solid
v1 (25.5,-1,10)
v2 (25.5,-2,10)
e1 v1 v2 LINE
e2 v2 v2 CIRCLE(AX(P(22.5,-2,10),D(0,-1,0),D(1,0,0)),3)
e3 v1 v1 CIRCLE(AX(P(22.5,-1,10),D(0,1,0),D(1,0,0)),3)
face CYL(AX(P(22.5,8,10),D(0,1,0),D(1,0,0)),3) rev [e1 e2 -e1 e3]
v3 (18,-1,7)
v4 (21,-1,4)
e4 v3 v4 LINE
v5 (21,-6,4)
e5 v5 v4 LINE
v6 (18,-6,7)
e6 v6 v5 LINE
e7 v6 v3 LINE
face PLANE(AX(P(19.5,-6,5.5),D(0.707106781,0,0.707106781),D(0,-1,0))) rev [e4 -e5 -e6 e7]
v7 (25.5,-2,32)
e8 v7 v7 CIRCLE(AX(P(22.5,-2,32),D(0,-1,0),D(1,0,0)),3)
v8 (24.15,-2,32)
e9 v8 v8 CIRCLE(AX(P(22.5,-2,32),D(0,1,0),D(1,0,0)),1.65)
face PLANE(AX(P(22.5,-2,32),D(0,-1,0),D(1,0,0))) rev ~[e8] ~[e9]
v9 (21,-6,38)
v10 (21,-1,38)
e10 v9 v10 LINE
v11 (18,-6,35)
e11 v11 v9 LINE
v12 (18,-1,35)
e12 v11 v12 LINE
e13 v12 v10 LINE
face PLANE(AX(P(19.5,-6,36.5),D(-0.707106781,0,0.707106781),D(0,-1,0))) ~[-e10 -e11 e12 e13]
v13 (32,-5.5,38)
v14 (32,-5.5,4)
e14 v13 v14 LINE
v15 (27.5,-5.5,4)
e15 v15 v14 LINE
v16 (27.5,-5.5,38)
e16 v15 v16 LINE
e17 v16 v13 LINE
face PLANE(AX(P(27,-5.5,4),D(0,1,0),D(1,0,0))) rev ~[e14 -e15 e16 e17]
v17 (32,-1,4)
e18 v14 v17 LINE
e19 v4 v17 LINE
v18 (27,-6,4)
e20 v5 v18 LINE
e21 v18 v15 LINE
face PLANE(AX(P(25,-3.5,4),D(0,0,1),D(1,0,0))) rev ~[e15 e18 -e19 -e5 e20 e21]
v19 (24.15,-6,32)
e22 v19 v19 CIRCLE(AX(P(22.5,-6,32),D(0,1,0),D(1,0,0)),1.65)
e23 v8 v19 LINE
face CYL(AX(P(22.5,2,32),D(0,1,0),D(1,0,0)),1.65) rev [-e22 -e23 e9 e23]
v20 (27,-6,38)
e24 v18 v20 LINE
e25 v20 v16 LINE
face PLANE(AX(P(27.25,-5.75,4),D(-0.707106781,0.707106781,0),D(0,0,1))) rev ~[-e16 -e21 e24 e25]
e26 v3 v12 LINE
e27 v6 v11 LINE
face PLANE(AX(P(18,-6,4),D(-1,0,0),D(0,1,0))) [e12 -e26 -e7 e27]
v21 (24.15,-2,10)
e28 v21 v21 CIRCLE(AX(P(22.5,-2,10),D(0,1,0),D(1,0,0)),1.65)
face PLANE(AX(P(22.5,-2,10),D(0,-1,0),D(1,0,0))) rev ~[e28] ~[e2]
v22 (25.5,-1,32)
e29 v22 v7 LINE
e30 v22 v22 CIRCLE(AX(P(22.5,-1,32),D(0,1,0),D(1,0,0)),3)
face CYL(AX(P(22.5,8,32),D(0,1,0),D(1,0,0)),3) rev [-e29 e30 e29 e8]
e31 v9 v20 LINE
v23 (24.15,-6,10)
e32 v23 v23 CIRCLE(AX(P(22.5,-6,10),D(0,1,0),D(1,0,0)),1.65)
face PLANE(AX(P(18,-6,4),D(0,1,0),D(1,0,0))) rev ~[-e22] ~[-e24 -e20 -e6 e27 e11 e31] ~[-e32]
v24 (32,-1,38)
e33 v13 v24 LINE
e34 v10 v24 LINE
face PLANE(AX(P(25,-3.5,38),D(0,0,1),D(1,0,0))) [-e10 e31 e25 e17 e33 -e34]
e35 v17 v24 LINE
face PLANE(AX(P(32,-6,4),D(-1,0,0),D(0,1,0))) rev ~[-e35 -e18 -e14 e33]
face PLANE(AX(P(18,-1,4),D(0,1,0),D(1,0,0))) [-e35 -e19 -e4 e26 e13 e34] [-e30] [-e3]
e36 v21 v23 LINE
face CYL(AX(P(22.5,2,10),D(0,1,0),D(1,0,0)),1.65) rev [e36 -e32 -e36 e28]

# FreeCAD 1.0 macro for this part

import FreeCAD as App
import Part
import Sketcher
from FreeCAD import Vector
Q = App.Units.Quantity


def edges_at(feature, points):
    """Names of the edges that pass closest to the given points."""
    edges = feature.Shape.Edges
    near = lambda p: min(range(len(edges)), key=lambda i: edges[i].distToShape(Part.Vertex(*p))[0])
    return sorted({f"Edge{near(p) + 1}" for p in points})


def add_polygon(sketch, points):
    """Adds a closed chain of lines whose ends are joined by coincident constraints."""
    first, n = sketch.GeometryCount, len(points)
    for a, b in zip(points, points[1:] + points[:1]):
        sketch.addGeometry(Part.LineSegment(App.Vector(*a, 0), App.Vector(*b, 0)), False)
    for i in range(n):
        sketch.addConstraint(Sketcher.Constraint("Coincident", first + i, 2, first + (i + 1) % n, 1))

doc = App.newDocument("Part")
body = doc.addObject("PartDesign::Body", "Body")

sketch1 = body.newObject("Sketcher::SketchObject", "Sketch")
sketch1.AttachmentSupport = (doc.getObject("XZ_Plane"), [""])
sketch1.MapMode = "FlatFace"
sketch1.AttachmentOffset = App.Placement(Vector(0, 0, -2), App.Rotation())
sketch1.addGeometry(Part.Circle(Vector(22.5, 10, 0), Vector(0, 0, 1), 3), False)
sketch1.addConstraint(Sketcher.Constraint("Diameter", 0, Q("6 mm")))
sketch1.addConstraint(Sketcher.Constraint("DistanceY", -1, 1, 0, 3, Q("10 mm")))
sketch1.addConstraint(Sketcher.Constraint("DistanceX", -1, 1, 0, 3, Q("22.5 mm")))
pad1 = body.newObject("PartDesign::Pad", "Pad")
pad1.Profile = sketch1
pad1.Length = 10
body2 = doc.addObject("PartDesign::Body", "Body001")
body2.AllowCompound = True

sketch2 = body2.newObject("Sketcher::SketchObject", "Sketch001")
sketch2.AttachmentSupport = (doc.getObject("XZ_Plane001"), [""])
sketch2.MapMode = "FlatFace"
sketch2.AttachmentOffset = App.Placement(Vector(0, 0, -2), App.Rotation())
sketch2.addGeometry(Part.Circle(Vector(22.5, 32, 0), Vector(0, 0, 1), 3), False)
sketch2.addConstraint(Sketcher.Constraint("Diameter", 0, Q("6 mm")))
sketch2.addConstraint(Sketcher.Constraint("DistanceY", -1, 1, 0, 3, Q("32 mm")))
sketch2.addConstraint(Sketcher.Constraint("DistanceX", -1, 1, 0, 3, Q("22.5 mm")))
pad2 = body2.newObject("PartDesign::Pad", "Pad001")
pad2.Profile = sketch2
pad2.Length = 10
doc.recompute()

boolean = body2.newObject("PartDesign::Boolean", "Boolean")
boolean.Type = "Fuse"
boolean.addObjects([body])
body3 = doc.addObject("PartDesign::Body", "Body002")
body3.AllowCompound = True
doc.recompute()

body2.Placement = App.Placement(Vector(0, 6, 0), App.Rotation(Vector(0, 0, 1), 0))
boolean2 = body3.newObject("PartDesign::Boolean", "Boolean001")
boolean2.Type = "Fuse"
boolean2.addObjects([body2])
body4 = doc.addObject("PartDesign::Body", "Body003")

sketch3 = body4.newObject("Sketcher::SketchObject", "Sketch002")
sketch3.AttachmentSupport = (doc.getObject("XZ_Plane003"), [""])
sketch3.MapMode = "FlatFace"
sketch3.AttachmentOffset = App.Placement(Vector(0, 0, -2), App.Rotation())
sketch3.addGeometry(Part.Circle(Vector(22.5, 10, 0), Vector(0, 0, 1), 1.6), False)
sketch3.addConstraint(Sketcher.Constraint("Diameter", 0, Q("3.3 mm")))
sketch3.addConstraint(Sketcher.Constraint("DistanceY", -1, 1, 0, 3, Q("10 mm")))
sketch3.addConstraint(Sketcher.Constraint("DistanceX", -1, 1, 0, 3, Q("22.5 mm")))
pad3 = body4.newObject("PartDesign::Pad", "Pad002")
pad3.Profile = sketch3
pad3.Length = 10
body5 = doc.addObject("PartDesign::Body", "Body004")
body5.AllowCompound = True

sketch4 = body5.newObject("Sketcher::SketchObject", "Sketch003")
sketch4.AttachmentSupport = (doc.getObject("XZ_Plane004"), [""])
sketch4.MapMode = "FlatFace"
sketch4.AttachmentOffset = App.Placement(Vector(0, 0, -2), App.Rotation())
sketch4.addGeometry(Part.Circle(Vector(22.5, 32, 0), Vector(0, 0, 1), 1.6), False)
sketch4.addConstraint(Sketcher.Constraint("Diameter", 0, Q("3.3 mm")))
sketch4.addConstraint(Sketcher.Constraint("DistanceY", -1, 1, 0, 3, Q("32 mm")))
sketch4.addConstraint(Sketcher.Constraint("DistanceX", -1, 1, 0, 3, Q("22.5 mm")))
pad4 = body5.newObject("PartDesign::Pad", "Pad003")
pad4.Profile = sketch4
pad4.Length = 10
doc.recompute()

boolean3 = body5.newObject("PartDesign::Boolean", "Boolean002")
boolean3.Type = "Fuse"
boolean3.addObjects([body4])
doc.recompute()

boolean4 = body5.newObject("PartDesign::Boolean", "Boolean003")
boolean4.Type = "Fuse"
boolean4.addObjects([body3])
body6 = doc.addObject("PartDesign::Body", "Body005")

sketch5 = body6.newObject("Sketcher::SketchObject", "Sketch004")
sketch5.AttachmentSupport = (doc.getObject("XY_Plane005"), [""])
sketch5.MapMode = "FlatFace"
sketch5.AttachmentOffset = App.Placement(Vector(0, 0, 4), App.Rotation())
add_polygon(sketch5, [(27, -6), (27, -10), (41, -10), (41, -6)])
sketch5.addConstraint(Sketcher.Constraint("Vertical", 0))
sketch5.addConstraint(Sketcher.Constraint("Horizontal", 1))
sketch5.addConstraint(Sketcher.Constraint("Vertical", 2))
sketch5.addConstraint(Sketcher.Constraint("Horizontal", 3))
sketch5.addConstraint(Sketcher.Constraint("DistanceX", 1, 1, 1, 2, Q("14 mm")))
sketch5.addConstraint(Sketcher.Constraint("DistanceY", 0, 2, 0, 1, Q("5 mm")))
sketch5.addConstraint(Sketcher.Constraint("DistanceX", -1, 1, 0, 2, Q("27 mm")))
sketch5.addConstraint(Sketcher.Constraint("DistanceY", 0, 2, -1, 1, Q("10.5 mm")))
pad5 = body6.newObject("PartDesign::Pad", "Pad004")
pad5.Profile = sketch5
pad5.Length = 34
doc.recompute()

chamfer = body6.newObject("PartDesign::Chamfer", "Chamfer")
chamfer.Base = (pad5, edges_at(pad5, [(27, -5.5, 21)]))
chamfer.Size = 0.5
body7 = doc.addObject("PartDesign::Body", "Body006")

sketch6 = body7.newObject("Sketcher::SketchObject", "Sketch005")
sketch6.AttachmentSupport = (doc.getObject("XY_Plane006"), [""])
sketch6.MapMode = "FlatFace"
sketch6.AttachmentOffset = App.Placement(Vector(0, 0, 4), App.Rotation())
add_polygon(sketch6, [(18, -1), (18, -6), (32, -6), (32, -1)])
sketch6.addConstraint(Sketcher.Constraint("Vertical", 0))
sketch6.addConstraint(Sketcher.Constraint("Horizontal", 1))
sketch6.addConstraint(Sketcher.Constraint("Vertical", 2))
sketch6.addConstraint(Sketcher.Constraint("Horizontal", 3))
sketch6.addConstraint(Sketcher.Constraint("DistanceX", 1, 1, 1, 2, Q("14 mm")))
sketch6.addConstraint(Sketcher.Constraint("DistanceY", 0, 2, 0, 1, Q("5 mm")))
sketch6.addConstraint(Sketcher.Constraint("DistanceX", -1, 1, 0, 2, Q("18 mm")))
sketch6.addConstraint(Sketcher.Constraint("DistanceY", 0, 2, -1, 1, Q("6 mm")))
pad6 = body7.newObject("PartDesign::Pad", "Pad005")
pad6.Profile = sketch6
pad6.Length = 34
doc.recompute()

boolean5 = body7.newObject("PartDesign::Boolean", "Boolean004")
boolean5.Type = "Cut"
boolean5.addObjects([body6])
doc.recompute()

boolean6 = body7.newObject("PartDesign::Boolean", "Boolean005")
boolean6.Type = "Cut"
boolean6.addObjects([body5])
doc.recompute()

chamfer2 = body7.newObject("PartDesign::Chamfer", "Chamfer001")
chamfer2.Base = (boolean6, edges_at(boolean6, [(18, -3.5, 38), (18, -3.5, 4)]))
chamfer2.Size = 3

doc.recompute()
